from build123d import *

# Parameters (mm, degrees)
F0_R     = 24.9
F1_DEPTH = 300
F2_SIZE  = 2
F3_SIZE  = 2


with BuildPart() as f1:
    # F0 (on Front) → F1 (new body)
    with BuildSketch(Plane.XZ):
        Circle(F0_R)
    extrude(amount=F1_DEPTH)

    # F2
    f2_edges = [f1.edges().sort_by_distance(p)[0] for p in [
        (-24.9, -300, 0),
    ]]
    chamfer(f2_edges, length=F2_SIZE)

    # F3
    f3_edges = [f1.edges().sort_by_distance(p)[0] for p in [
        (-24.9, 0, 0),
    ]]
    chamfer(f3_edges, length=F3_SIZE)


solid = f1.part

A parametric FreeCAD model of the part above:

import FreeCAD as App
import Part
import Sketcher


def edges_at(feature, points):
    """Names of the edges that pass closest to the given points."""
    edges = feature.Shape.Edges
    near = lambda p: min(range(len(edges)), key=lambda i: edges[i].distToShape(Part.Vertex(*p))[0])
    return sorted({f"Edge{near(p) + 1}" for p in points})

doc = App.newDocument("Part")
body = doc.addObject("PartDesign::Body", "Body")

sketch1 = body.newObject("Sketcher::SketchObject", "Sketch")
sketch1.AttachmentSupport = (doc.getObject("XZ_Plane"), [""])
sketch1.MapMode = "FlatFace"
sketch1.addGeometry(Part.Circle(App.Vector(0, 0, 0), App.Vector(0, 0, 1), 25), False)
sketch1.addConstraint([
    Sketcher.Constraint("Coincident", 0, 3, -1, 1),
    Sketcher.Constraint("Diameter", 0, 49.8),
])
pad1 = body.newObject("PartDesign::Pad", "Pad")
pad1.Profile = sketch1
pad1.Length = 300
doc.recompute()

chamfer = body.newObject("PartDesign::Chamfer", "Chamfer")
chamfer.Base = (pad1, edges_at(pad1, [(-24.9, -300, 0)]))
chamfer.Size = 2
doc.recompute()

chamfer2 = body.newObject("PartDesign::Chamfer", "Chamfer001")
chamfer2.Base = (chamfer, edges_at(chamfer, [(-24.9, 0, 0)]))
chamfer2.Size = 2

doc.recompute()
